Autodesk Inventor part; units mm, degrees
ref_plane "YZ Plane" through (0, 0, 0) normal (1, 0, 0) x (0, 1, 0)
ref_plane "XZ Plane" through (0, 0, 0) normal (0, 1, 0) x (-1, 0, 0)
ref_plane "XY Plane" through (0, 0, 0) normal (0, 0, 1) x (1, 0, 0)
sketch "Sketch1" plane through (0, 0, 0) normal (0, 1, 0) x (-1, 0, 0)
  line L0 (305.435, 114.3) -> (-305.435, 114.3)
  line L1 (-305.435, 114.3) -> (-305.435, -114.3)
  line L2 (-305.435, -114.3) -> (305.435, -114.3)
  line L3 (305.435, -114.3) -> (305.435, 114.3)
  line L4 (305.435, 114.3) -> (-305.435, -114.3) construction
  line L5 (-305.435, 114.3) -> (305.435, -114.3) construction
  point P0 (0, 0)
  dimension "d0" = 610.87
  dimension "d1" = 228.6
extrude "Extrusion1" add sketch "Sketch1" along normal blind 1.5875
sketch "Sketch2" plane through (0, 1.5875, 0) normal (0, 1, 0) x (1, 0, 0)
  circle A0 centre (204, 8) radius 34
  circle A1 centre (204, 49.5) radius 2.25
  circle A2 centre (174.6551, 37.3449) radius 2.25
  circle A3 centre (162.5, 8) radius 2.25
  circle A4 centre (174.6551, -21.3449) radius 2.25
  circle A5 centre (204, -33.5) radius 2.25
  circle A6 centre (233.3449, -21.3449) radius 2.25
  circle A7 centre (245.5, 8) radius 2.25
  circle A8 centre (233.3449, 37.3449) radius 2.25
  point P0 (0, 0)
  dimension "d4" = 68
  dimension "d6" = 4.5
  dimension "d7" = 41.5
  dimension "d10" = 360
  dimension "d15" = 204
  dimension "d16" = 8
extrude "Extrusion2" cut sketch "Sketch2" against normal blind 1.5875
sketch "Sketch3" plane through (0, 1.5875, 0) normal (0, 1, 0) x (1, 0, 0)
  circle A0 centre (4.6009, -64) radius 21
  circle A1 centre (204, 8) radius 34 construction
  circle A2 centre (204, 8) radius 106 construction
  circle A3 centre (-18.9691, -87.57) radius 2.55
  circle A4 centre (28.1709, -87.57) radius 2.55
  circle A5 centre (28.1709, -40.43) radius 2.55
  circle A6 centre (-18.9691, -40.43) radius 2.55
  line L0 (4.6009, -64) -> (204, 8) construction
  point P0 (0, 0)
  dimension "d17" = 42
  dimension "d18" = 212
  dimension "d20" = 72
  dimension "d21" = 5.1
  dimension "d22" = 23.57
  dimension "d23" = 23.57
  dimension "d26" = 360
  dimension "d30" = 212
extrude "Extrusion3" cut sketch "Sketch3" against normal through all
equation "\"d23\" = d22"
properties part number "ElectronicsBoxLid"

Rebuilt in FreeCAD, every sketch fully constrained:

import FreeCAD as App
import Part
import Sketcher

V = App.Vector
Q = App.Units.Quantity

doc = App.newDocument("Part")
body = doc.addObject("PartDesign::Body", "Body")

sketch1 = doc.addObject("Sketcher::SketchObject", "Sketch")
body.addObject(sketch1)
sketch1.AttachmentSupport = (doc.XZ_Plane, [""])
sketch1.MapMode = "FlatFace"
sketch1.addGeometry([
    Part.LineSegment(V(-305, -114, 0), V(-305, 114, 0)),
    Part.LineSegment(V(-305, 114, 0), V(305, 114, 0)),
    Part.LineSegment(V(305, 114, 0), V(305, -114, 0)),
    Part.LineSegment(V(305, -114, 0), V(-305, -114, 0)),
], False)
sketch1.addConstraint([
    Sketcher.Constraint("Coincident", 0, 2, 1, 1),
    Sketcher.Constraint("Coincident", 1, 2, 2, 1),
    Sketcher.Constraint("Coincident", 2, 2, 3, 1),
    Sketcher.Constraint("Coincident", 3, 2, 0, 1),
    Sketcher.Constraint("Vertical", 0),
    Sketcher.Constraint("Horizontal", 1),
    Sketcher.Constraint("Vertical", 2),
    Sketcher.Constraint("Horizontal", 3),
    Sketcher.Constraint("Symmetric", 0, 2, 2, 2, -1, 1),
    Sketcher.Constraint("DistanceY", 0, 1, 0, 2, Q("228.6 mm")),
    Sketcher.Constraint("DistanceX", 1, 1, 1, 2, Q("610.87 mm")),
])
pad1 = doc.addObject("PartDesign::Pad", "Pad")
body.addObject(pad1)
pad1.Profile = sketch1
pad1.Length = 1.5875
pad1.Reversed = True

sketch2 = doc.addObject("Sketcher::SketchObject", "Sketch001")
body.addObject(sketch2)
sketch2.AttachmentSupport = (doc.XZ_Plane, [""])
sketch2.MapMode = "FlatFace"
sketch2.AttachmentOffset = App.Placement(V(0, 0, -1.5875), App.Rotation())
sketch2.addGeometry([
    Part.Circle(V(204, -8, 0), V(0, 0, 1), 34),
    Part.Circle(V(204, -49.5, 0), V(0, 0, 1), 2.2),
    Part.Circle(V(174.7, -37.3, 0), V(0, 0, 1), 2.2),
    Part.Circle(V(162.5, -8, 0), V(0, 0, 1), 2.2),
    Part.Circle(V(174.7, 21.3, 0), V(0, 0, 1), 2.2),
    Part.Circle(V(204, 33.5, 0), V(0, 0, 1), 2.2),
    Part.Circle(V(233.3, 21.3, 0), V(0, 0, 1), 2.2),
    Part.Circle(V(245.5, -8, 0), V(0, 0, 1), 2.2),
    Part.Circle(V(233.3, -37.3, 0), V(0, 0, 1), 2.2),
], False)
sketch2.addConstraint([
    Sketcher.Constraint("Equal", 1, 2),
    Sketcher.Constraint("Equal", 2, 3),
    Sketcher.Constraint("Equal", 3, 4),
    Sketcher.Constraint("Equal", 4, 5),
    Sketcher.Constraint("Equal", 5, 6),
    Sketcher.Constraint("Equal", 6, 7),
    Sketcher.Constraint("Equal", 7, 8),
    Sketcher.Constraint("Horizontal", 0, 3, 3, 3),
    Sketcher.Constraint("Horizontal", 4, 3, 6, 3),
    Sketcher.Constraint("Horizontal", 3, 3, 7, 3),
    Sketcher.Constraint("Horizontal", 2, 3, 8, 3),
    Sketcher.Constraint("Vertical", 0, 3, 1, 3),
    Sketcher.Constraint("Vertical", 2, 3, 4, 3),
    Sketcher.Constraint("Vertical", 1, 3, 5, 3),
    Sketcher.Constraint("Vertical", 6, 3, 8, 3),
    Sketcher.Constraint("Diameter", 0, Q("68 mm")),
    Sketcher.Constraint("Diameter", 1, Q("4.5 mm")),
    Sketcher.Constraint("DistanceX", -1, 1, 0, 3, Q("204 mm")),
    Sketcher.Constraint("DistanceY", 0, 3, -1, 1, Q("8 mm")),
    Sketcher.Constraint("DistanceY", 1, 3, 0, 3, Q("41.5 mm")),
    Sketcher.Constraint("DistanceX", 3, 3, 0, 3, Q("41.5 mm")),
    Sketcher.Constraint("DistanceY", 0, 3, 5, 3, Q("41.5 mm")),
    Sketcher.Constraint("DistanceX", 0, 3, 7, 3, Q("41.5 mm")),
    Sketcher.Constraint("DistanceX", -1, 1, 2, 3, Q("174.655 mm")),
    Sketcher.Constraint("DistanceY", 2, 3, -1, 1, Q("37.345 mm")),
    Sketcher.Constraint("DistanceY", -1, 1, 4, 3, Q("21.345 mm")),
    Sketcher.Constraint("DistanceX", -1, 1, 6, 3, Q("233.345 mm")),
])
pocket1 = doc.addObject("PartDesign::Pocket", "Pocket")
body.addObject(pocket1)
pocket1.Profile = sketch2
pocket1.Length = 1.5875
pocket1.Reversed = True

sketch3 = doc.addObject("Sketcher::SketchObject", "Sketch002")
body.addObject(sketch3)
sketch3.AttachmentSupport = (doc.XZ_Plane, [""])
sketch3.MapMode = "FlatFace"
sketch3.AttachmentOffset = App.Placement(V(0, 0, -1.5875), App.Rotation())
sketch3.addGeometry([
    Part.Circle(V(4.6, 64, 0), V(0, 0, 1), 21),
    Part.Circle(V(-19, 87.6, 0), V(0, 0, 1), 2.5),
    Part.Circle(V(28.2, 87.6, 0), V(0, 0, 1), 2.5),
    Part.Circle(V(28.2, 40.4, 0), V(0, 0, 1), 2.5),
    Part.Circle(V(-19, 40.4, 0), V(0, 0, 1), 2.5),
], False)
sketch3.addConstraint([
    Sketcher.Constraint("Equal", 1, 2),
    Sketcher.Constraint("Equal", 2, 3),
    Sketcher.Constraint("Equal", 3, 4),
    Sketcher.Constraint("Horizontal", 1, 3, 2, 3),
    Sketcher.Constraint("Horizontal", 3, 3, 4, 3),
    Sketcher.Constraint("Vertical", 2, 3, 3, 3),
    Sketcher.Constraint("Vertical", 1, 3, 4, 3),
    Sketcher.Constraint("Diameter", 0, Q("42 mm")),
    Sketcher.Constraint("Diameter", 1, Q("5.1 mm")),
    Sketcher.Constraint("DistanceX", 1, 3, 0, 3, Q("23.57 mm")),
    Sketcher.Constraint("DistanceY", 0, 3, 1, 3, Q("23.57 mm")),
    Sketcher.Constraint("DistanceX", 0, 3, 2, 3, Q("23.57 mm")),
    Sketcher.Constraint("DistanceY", 3, 3, 0, 3, Q("23.57 mm")),
    Sketcher.Constraint("DistanceY", -1, 1, 0, 3, Q("64 mm")),
    Sketcher.Constraint("DistanceX", -1, 1, 0, 3, Q("4.601 mm")),
])
pocket2 = doc.addObject("PartDesign::Pocket", "Pocket001")
body.addObject(pocket2)
pocket2.Profile = sketch3
pocket2.Type = "ThroughAll"
pocket2.Reversed = True

doc.recompute()
